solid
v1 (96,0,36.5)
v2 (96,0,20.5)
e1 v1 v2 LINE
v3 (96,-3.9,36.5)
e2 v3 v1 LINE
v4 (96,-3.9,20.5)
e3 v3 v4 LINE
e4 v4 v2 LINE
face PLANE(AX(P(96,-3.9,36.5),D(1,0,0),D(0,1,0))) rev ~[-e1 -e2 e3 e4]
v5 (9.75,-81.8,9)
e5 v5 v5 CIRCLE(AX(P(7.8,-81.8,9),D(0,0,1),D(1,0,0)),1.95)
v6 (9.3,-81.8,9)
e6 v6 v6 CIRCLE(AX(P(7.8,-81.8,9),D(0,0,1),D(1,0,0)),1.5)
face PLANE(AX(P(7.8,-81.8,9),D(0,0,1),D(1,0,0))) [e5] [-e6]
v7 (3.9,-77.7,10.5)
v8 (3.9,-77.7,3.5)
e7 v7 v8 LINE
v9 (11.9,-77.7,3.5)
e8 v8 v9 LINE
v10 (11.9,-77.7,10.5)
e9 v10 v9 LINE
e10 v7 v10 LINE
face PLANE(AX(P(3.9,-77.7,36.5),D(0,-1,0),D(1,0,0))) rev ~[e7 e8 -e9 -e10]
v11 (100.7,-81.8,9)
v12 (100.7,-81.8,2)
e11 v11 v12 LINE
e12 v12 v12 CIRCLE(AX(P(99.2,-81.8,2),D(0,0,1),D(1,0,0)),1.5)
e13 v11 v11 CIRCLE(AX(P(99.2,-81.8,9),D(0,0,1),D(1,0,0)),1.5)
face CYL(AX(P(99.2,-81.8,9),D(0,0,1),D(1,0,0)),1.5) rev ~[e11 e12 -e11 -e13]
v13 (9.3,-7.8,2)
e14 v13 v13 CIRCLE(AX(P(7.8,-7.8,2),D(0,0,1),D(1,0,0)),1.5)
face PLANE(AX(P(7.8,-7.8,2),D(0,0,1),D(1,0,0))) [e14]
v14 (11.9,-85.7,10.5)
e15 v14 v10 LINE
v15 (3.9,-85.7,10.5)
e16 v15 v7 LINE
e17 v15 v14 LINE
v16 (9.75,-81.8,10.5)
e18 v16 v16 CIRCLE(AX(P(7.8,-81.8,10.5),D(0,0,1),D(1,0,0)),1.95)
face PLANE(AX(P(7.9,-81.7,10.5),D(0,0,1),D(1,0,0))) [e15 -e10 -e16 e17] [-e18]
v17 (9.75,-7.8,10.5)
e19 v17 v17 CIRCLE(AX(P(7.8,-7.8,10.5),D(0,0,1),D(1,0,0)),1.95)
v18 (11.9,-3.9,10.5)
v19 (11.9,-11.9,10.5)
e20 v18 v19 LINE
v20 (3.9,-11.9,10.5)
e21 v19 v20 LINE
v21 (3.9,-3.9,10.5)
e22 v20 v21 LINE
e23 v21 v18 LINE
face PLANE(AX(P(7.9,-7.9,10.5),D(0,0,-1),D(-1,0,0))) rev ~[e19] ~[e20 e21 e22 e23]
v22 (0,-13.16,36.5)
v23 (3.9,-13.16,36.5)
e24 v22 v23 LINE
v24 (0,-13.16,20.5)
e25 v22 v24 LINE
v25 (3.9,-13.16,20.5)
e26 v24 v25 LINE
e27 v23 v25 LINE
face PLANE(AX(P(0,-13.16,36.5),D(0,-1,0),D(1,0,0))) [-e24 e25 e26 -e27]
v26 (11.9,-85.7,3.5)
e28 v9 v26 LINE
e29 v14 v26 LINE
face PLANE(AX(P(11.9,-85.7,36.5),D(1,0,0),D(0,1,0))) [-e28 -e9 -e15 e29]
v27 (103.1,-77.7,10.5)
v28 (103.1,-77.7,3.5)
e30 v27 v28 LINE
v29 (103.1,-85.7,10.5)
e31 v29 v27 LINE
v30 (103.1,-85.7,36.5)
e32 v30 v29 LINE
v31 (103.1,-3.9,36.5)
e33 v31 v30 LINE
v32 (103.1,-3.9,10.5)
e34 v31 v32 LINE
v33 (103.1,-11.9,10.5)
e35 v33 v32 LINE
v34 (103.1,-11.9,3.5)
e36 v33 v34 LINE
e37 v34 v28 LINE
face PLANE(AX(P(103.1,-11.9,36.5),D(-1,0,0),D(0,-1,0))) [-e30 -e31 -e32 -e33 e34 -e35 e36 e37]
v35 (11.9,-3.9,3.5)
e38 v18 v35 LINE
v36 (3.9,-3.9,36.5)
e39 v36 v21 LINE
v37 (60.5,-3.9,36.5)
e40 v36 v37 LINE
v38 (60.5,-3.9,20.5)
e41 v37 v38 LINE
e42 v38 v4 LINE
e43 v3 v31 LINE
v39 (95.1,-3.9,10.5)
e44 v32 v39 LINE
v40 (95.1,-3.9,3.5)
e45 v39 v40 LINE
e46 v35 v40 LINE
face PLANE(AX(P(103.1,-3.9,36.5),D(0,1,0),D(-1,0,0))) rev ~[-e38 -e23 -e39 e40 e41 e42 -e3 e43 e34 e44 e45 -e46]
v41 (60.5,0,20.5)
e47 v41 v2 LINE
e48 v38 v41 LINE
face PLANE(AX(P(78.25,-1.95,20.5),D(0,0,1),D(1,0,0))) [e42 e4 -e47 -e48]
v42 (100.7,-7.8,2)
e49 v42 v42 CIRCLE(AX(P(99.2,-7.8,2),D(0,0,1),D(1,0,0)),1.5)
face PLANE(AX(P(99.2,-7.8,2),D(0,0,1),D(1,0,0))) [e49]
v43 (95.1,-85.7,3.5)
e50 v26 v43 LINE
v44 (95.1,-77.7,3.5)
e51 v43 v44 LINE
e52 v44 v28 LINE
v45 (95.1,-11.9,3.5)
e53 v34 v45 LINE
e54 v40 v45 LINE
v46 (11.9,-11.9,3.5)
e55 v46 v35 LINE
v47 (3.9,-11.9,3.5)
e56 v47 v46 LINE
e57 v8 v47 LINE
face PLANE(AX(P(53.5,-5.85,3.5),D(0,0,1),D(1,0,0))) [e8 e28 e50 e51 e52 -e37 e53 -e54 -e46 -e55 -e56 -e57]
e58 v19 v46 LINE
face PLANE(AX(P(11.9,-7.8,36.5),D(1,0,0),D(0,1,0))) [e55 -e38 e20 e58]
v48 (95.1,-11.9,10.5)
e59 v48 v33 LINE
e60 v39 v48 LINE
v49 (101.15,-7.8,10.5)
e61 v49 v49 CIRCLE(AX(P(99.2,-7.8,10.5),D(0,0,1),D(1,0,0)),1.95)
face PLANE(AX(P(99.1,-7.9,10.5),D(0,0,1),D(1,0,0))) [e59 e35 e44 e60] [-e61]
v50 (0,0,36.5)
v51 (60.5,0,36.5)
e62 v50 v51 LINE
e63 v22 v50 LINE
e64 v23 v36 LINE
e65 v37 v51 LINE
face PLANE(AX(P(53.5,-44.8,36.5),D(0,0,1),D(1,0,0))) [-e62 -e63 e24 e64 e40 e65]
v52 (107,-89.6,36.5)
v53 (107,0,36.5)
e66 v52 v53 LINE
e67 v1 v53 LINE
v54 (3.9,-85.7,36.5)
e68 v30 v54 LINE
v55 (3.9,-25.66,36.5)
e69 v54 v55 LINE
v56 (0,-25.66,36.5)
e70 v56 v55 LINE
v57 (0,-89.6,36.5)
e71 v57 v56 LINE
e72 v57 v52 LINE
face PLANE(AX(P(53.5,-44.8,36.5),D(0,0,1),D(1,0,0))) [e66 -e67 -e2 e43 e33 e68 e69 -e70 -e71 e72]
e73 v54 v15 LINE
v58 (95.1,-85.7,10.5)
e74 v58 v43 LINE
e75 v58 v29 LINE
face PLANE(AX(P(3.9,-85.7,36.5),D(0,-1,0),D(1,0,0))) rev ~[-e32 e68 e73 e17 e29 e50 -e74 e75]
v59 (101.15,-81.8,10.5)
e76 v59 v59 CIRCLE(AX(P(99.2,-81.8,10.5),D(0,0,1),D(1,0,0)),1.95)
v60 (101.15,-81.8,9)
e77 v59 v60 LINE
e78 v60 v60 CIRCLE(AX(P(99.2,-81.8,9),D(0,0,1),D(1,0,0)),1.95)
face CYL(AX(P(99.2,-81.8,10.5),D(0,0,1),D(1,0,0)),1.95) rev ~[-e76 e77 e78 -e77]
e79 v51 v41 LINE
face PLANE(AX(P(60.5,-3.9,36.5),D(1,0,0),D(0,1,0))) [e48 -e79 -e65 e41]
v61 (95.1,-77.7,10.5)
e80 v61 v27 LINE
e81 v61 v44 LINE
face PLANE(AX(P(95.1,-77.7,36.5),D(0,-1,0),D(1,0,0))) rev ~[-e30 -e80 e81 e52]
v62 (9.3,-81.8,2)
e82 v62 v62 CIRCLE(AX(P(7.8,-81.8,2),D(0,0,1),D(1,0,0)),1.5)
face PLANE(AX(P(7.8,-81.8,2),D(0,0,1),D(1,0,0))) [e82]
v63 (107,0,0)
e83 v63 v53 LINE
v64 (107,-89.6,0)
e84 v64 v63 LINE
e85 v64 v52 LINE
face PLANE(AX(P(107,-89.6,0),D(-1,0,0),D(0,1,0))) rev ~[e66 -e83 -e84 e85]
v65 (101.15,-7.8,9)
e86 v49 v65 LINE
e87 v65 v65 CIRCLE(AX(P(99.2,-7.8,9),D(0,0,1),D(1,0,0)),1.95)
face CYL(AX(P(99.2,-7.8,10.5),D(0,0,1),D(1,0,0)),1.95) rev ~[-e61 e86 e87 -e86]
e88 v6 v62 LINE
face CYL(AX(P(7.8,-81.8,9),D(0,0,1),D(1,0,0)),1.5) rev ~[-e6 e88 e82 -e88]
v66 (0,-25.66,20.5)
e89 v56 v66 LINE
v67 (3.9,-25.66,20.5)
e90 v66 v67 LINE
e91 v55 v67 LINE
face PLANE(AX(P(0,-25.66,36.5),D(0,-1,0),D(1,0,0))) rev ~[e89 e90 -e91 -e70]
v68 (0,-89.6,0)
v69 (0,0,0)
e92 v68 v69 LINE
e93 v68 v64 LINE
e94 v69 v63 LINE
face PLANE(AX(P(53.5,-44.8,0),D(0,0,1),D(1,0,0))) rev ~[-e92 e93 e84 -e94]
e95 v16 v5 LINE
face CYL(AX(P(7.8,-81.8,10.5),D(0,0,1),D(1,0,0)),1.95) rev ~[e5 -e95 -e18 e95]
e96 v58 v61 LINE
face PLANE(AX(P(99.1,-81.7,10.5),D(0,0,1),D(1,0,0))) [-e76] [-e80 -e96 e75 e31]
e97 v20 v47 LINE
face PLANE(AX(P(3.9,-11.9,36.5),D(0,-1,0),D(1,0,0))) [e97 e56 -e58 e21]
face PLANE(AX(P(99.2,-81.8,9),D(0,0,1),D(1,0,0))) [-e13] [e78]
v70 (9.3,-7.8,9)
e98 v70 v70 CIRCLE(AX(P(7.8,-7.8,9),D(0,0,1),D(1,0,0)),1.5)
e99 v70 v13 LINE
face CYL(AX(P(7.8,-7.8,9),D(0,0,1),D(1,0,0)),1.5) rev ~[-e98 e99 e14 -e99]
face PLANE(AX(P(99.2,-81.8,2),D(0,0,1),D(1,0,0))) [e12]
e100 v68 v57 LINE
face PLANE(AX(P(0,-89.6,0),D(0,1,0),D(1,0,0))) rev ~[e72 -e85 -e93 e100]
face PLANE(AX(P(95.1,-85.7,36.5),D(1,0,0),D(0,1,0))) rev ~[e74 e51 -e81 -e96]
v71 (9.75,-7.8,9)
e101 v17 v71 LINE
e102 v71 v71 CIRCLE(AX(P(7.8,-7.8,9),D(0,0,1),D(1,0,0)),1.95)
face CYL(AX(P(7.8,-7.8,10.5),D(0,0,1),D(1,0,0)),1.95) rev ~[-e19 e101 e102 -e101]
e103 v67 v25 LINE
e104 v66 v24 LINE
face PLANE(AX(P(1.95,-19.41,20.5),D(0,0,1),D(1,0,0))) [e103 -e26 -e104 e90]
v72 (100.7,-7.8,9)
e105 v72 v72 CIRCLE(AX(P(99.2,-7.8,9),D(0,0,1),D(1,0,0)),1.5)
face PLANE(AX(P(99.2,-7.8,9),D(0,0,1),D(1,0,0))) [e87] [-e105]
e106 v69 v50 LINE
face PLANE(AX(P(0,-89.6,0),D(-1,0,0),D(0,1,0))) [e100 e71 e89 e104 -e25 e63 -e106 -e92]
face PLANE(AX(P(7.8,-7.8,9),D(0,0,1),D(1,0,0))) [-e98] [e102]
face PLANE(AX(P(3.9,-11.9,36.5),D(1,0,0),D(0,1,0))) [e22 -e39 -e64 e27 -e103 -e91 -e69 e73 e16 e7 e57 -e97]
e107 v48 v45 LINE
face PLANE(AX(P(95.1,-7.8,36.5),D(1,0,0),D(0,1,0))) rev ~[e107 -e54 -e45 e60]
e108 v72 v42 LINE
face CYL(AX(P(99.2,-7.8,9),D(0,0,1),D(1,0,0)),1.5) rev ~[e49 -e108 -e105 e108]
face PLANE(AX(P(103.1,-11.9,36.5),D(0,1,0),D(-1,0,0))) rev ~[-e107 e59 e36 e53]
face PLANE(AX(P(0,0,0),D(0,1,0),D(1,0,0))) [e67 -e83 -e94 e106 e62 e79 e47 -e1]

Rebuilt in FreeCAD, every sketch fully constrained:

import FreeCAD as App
import Part
import Sketcher

V = App.Vector
Q = App.Units.Quantity

doc = App.newDocument("Part")
params = doc.addObject("Spreadsheet::Sheet", "Params")
for row, (alias, value) in enumerate([
    ("sketch1_width", "107 mm"),
    ("sketch1_height", "89.6 mm"),
    ("pad1_length", "36.5 mm"),
    ("sketch2_width", "8 mm"),
    ("sketch2_width2", "83.2 mm"),
    ("sketch2_height", "4.1 mm"),
    ("sketch2_height2", "65.8 mm"),
    ("pocket1_length", "33 mm"),
    ("sketch3_width", "8 mm"),
    ("pocket2_length", "26 mm"),
    ("sketch4_width", "83.2 mm"),
    ("sketch4_height", "3.9 mm"),
    ("sketch4_height2", "4.1 mm"),
    ("pocket3_length", "33 mm"),
    ("sketch5_width", "83.2 mm"),
    ("sketch5_height", "3.9 mm"),
    ("pocket4_length", "33 mm"),
    ("sketch6_width", "35.5 mm"),
    ("sketch6_height", "3.9 mm"),
    ("pocket5_length", "16 mm"),
    ("sketch7_width", "3.9 mm"),
    ("sketch7_height", "12.5 mm"),
    ("pocket6_length", "16 mm"),
    ("sketch8_diameter", "3.9 mm"),
    ("pocket7_length", "1.5 mm"),
    ("sketch9_diameter", "3.9 mm"),
    ("pocket8_length", "1.5 mm"),
    ("sketch10_diameter", "3.9 mm"),
    ("pocket9_length", "1.5 mm"),
    ("sketch11_diameter", "3.9 mm"),
    ("pocket10_length", "1.5 mm"),
    ("sketch12_diameter", "3 mm"),
    ("pocket11_length", "7 mm"),
    ("sketch13_diameter", "3 mm"),
    ("pocket12_length", "7 mm"),
    ("sketch14_diameter", "3 mm"),
    ("pocket13_length", "7 mm"),
    ("sketch15_diameter", "3 mm"),
    ("pocket14_length", "7 mm"),
], start=1):
    params.set(f"A{row}", alias)
    params.set(f"B{row}", "=" + value)
    params.setAlias(f"B{row}", alias)

body = doc.addObject("PartDesign::Body", "Body")

# Sketch on XY plane
sketch1 = body.newObject("Sketcher::SketchObject", "Sketch")
sketch1.AttachmentSupport = (doc.getObject("XY_Plane"), [""])
sketch1.MapMode = "FlatFace"
sketch1.addGeometry(Part.LineSegment(V(0, 0, 0), V(0, -90, 0)), False)
sketch1.addGeometry(Part.LineSegment(V(0, -90, 0), V(107, -90, 0)), False)
sketch1.addGeometry(Part.LineSegment(V(107, -90, 0), V(107, 0, 0)), False)
sketch1.addGeometry(Part.LineSegment(V(107, 0, 0), V(0, 0, 0)), False)
sketch1.addConstraint(Sketcher.Constraint("Coincident", 0, 2, 1, 1))
sketch1.addConstraint(Sketcher.Constraint("Coincident", 1, 2, 2, 1))
sketch1.addConstraint(Sketcher.Constraint("Coincident", 2, 2, 3, 1))
sketch1.addConstraint(Sketcher.Constraint("Coincident", 3, 2, 0, 1))
sketch1.addConstraint(Sketcher.Constraint("Vertical", 0))
sketch1.addConstraint(Sketcher.Constraint("Horizontal", 1))
sketch1.addConstraint(Sketcher.Constraint("Vertical", 2))
sketch1.addConstraint(Sketcher.Constraint("Horizontal", 3))
sketch1.addConstraint(Sketcher.Constraint("Coincident", 3, 2, -1, 1))
sketch1.addConstraint(Sketcher.Constraint("DistanceX", 1, 1, 1, 2, Q("107 mm")))
sketch1.addConstraint(Sketcher.Constraint("DistanceY", 0, 2, 0, 1, Q("89.6 mm")))
sketch1.setExpression("Constraints[9]", "Params.sketch1_width")
sketch1.setExpression("Constraints[10]", "Params.sketch1_height")
pad1 = body.newObject("PartDesign::Pad", "Pad")
pad1.Profile = sketch1
pad1.setExpression("Length", "Params.pad1_length")

# Sketch on XY plane
sketch2 = body.newObject("Sketcher::SketchObject", "Sketch001")
sketch2.AttachmentSupport = (doc.getObject("XY_Plane"), [""])
sketch2.MapMode = "FlatFace"
sketch2.AttachmentOffset = App.Placement(V(0, 0, 36.5), App.Rotation())
sketch2.addGeometry(Part.LineSegment(V(95.1, -81.8, 0), V(95.1, -77.7, 0)), False)
sketch2.addGeometry(Part.LineSegment(V(95.1, -77.7, 0), V(103.1, -77.7, 0)), False)
sketch2.addGeometry(Part.LineSegment(V(103.1, -77.7, 0), V(103.1, -11.9, 0)), False)
sketch2.addGeometry(Part.LineSegment(V(103.1, -11.9, 0), V(95.1, -11.9, 0)), False)
sketch2.addGeometry(Part.LineSegment(V(95.1, -11.9, 0), V(95.1, -7.8, 0)), False)
sketch2.addGeometry(Part.LineSegment(V(95.1, -7.8, 0), V(11.9, -7.8, 0)), False)
sketch2.addGeometry(Part.LineSegment(V(11.9, -7.8, 0), V(11.9, -11.9, 0)), False)
sketch2.addGeometry(Part.LineSegment(V(11.9, -11.9, 0), V(3.9, -11.9, 0)), False)
sketch2.addGeometry(Part.LineSegment(V(3.9, -11.9, 0), V(3.9, -77.7, 0)), False)
sketch2.addGeometry(Part.LineSegment(V(3.9, -77.7, 0), V(11.9, -77.7, 0)), False)
sketch2.addGeometry(Part.LineSegment(V(11.9, -77.7, 0), V(11.9, -81.8, 0)), False)
sketch2.addGeometry(Part.LineSegment(V(11.9, -81.8, 0), V(95.1, -81.8, 0)), False)
sketch2.addConstraint(Sketcher.Constraint("Coincident", 0, 2, 1, 1))
sketch2.addConstraint(Sketcher.Constraint("Coincident", 1, 2, 2, 1))
sketch2.addConstraint(Sketcher.Constraint("Coincident", 2, 2, 3, 1))
sketch2.addConstraint(Sketcher.Constraint("Coincident", 3, 2, 4, 1))
sketch2.addConstraint(Sketcher.Constraint("Coincident", 4, 2, 5, 1))
sketch2.addConstraint(Sketcher.Constraint("Coincident", 5, 2, 6, 1))
sketch2.addConstraint(Sketcher.Constraint("Coincident", 6, 2, 7, 1))
sketch2.addConstraint(Sketcher.Constraint("Coincident", 7, 2, 8, 1))
sketch2.addConstraint(Sketcher.Constraint("Coincident", 8, 2, 9, 1))
sketch2.addConstraint(Sketcher.Constraint("Coincident", 9, 2, 10, 1))
sketch2.addConstraint(Sketcher.Constraint("Coincident", 10, 2, 11, 1))
sketch2.addConstraint(Sketcher.Constraint("Coincident", 11, 2, 0, 1))
sketch2.addConstraint(Sketcher.Constraint("Vertical", 0))
sketch2.addConstraint(Sketcher.Constraint("Horizontal", 1))
sketch2.addConstraint(Sketcher.Constraint("Vertical", 2))
sketch2.addConstraint(Sketcher.Constraint("Horizontal", 3))
sketch2.addConstraint(Sketcher.Constraint("Vertical", 4))
sketch2.addConstraint(Sketcher.Constraint("Horizontal", 5))
sketch2.addConstraint(Sketcher.Constraint("Vertical", 6))
sketch2.addConstraint(Sketcher.Constraint("Horizontal", 7))
sketch2.addConstraint(Sketcher.Constraint("Vertical", 8))
sketch2.addConstraint(Sketcher.Constraint("Horizontal", 9))
sketch2.addConstraint(Sketcher.Constraint("Vertical", 10))
sketch2.addConstraint(Sketcher.Constraint("Horizontal", 11))
sketch2.addConstraint(Sketcher.Constraint("Horizontal", 3, 2, 6, 2))
sketch2.addConstraint(Sketcher.Constraint("Horizontal", 1, 2, 8, 2))
sketch2.addConstraint(Sketcher.Constraint("Vertical", 0, 2, 3, 2))
sketch2.addConstraint(Sketcher.Constraint("Vertical", 6, 2, 9, 2))
sketch2.addConstraint(Sketcher.Constraint("Equal", 3, 7))
sketch2.addConstraint(Sketcher.Constraint("Equal", 0, 4))
sketch2.addConstraint(Sketcher.Constraint("DistanceX", 1, 1, 1, 2, Q("8 mm")))
sketch2.addConstraint(Sketcher.Constraint("DistanceX", 5, 2, 5, 1, Q("83.2 mm")))
sketch2.addConstraint(Sketcher.Constraint("DistanceY", 0, 1, 0, 2, Q("4.1 mm")))
sketch2.addConstraint(Sketcher.Constraint("DistanceY", 2, 1, 2, 2, Q("65.8 mm")))
sketch2.addConstraint(Sketcher.Constraint("DistanceX", -1, 1, 0, 2, Q("95.1 mm")))
sketch2.addConstraint(Sketcher.Constraint("DistanceY", 0, 2, -1, 1, Q("77.7 mm")))
sketch2.setExpression("Constraints[30]", "Params.sketch2_width")
sketch2.setExpression("Constraints[31]", "Params.sketch2_width2")
sketch2.setExpression("Constraints[32]", "Params.sketch2_height")
sketch2.setExpression("Constraints[33]", "Params.sketch2_height2")
pocket1 = body.newObject("PartDesign::Pocket", "Pocket")
pocket1.Profile = sketch2
pocket1.setExpression("Length", "Params.pocket1_length")

# Sketch on XY plane
sketch3 = body.newObject("Sketcher::SketchObject", "Sketch002")
sketch3.AttachmentSupport = (doc.getObject("XY_Plane"), [""])
sketch3.MapMode = "FlatFace"
sketch3.AttachmentOffset = App.Placement(V(0, 0, 36.5), App.Rotation())
sketch3.addGeometry(Part.LineSegment(V(4, -4, 0), V(4, -12, 0)), False)
sketch3.addGeometry(Part.LineSegment(V(4, -12, 0), V(12, -12, 0)), False)
sketch3.addGeometry(Part.LineSegment(V(12, -12, 0), V(12, -4, 0)), False)
sketch3.addGeometry(Part.LineSegment(V(12, -4, 0), V(4, -4, 0)), False)
sketch3.addGeometry(Part.LineSegment(V(103, -12, 0), V(103, -4, 0)), False)
sketch3.addGeometry(Part.LineSegment(V(103, -4, 0), V(95, -4, 0)), False)
sketch3.addGeometry(Part.LineSegment(V(95, -4, 0), V(95, -12, 0)), False)
sketch3.addGeometry(Part.LineSegment(V(95, -12, 0), V(103, -12, 0)), False)
sketch3.addGeometry(Part.LineSegment(V(4, -78, 0), V(4, -86, 0)), False)
sketch3.addGeometry(Part.LineSegment(V(4, -86, 0), V(12, -86, 0)), False)
sketch3.addGeometry(Part.LineSegment(V(12, -86, 0), V(12, -78, 0)), False)
sketch3.addGeometry(Part.LineSegment(V(12, -78, 0), V(4, -78, 0)), False)
sketch3.addGeometry(Part.LineSegment(V(95, -78, 0), V(95, -86, 0)), False)
sketch3.addGeometry(Part.LineSegment(V(95, -86, 0), V(103, -86, 0)), False)
sketch3.addGeometry(Part.LineSegment(V(103, -86, 0), V(103, -78, 0)), False)
sketch3.addGeometry(Part.LineSegment(V(103, -78, 0), V(95, -78, 0)), False)
sketch3.addConstraint(Sketcher.Constraint("Coincident", 0, 2, 1, 1))
sketch3.addConstraint(Sketcher.Constraint("Coincident", 1, 2, 2, 1))
sketch3.addConstraint(Sketcher.Constraint("Coincident", 2, 2, 3, 1))
sketch3.addConstraint(Sketcher.Constraint("Coincident", 3, 2, 0, 1))
sketch3.addConstraint(Sketcher.Constraint("Coincident", 4, 2, 5, 1))
sketch3.addConstraint(Sketcher.Constraint("Coincident", 5, 2, 6, 1))
sketch3.addConstraint(Sketcher.Constraint("Coincident", 6, 2, 7, 1))
sketch3.addConstraint(Sketcher.Constraint("Coincident", 7, 2, 4, 1))
sketch3.addConstraint(Sketcher.Constraint("Coincident", 8, 2, 9, 1))
sketch3.addConstraint(Sketcher.Constraint("Coincident", 9, 2, 10, 1))
sketch3.addConstraint(Sketcher.Constraint("Coincident", 10, 2, 11, 1))
sketch3.addConstraint(Sketcher.Constraint("Coincident", 11, 2, 8, 1))
sketch3.addConstraint(Sketcher.Constraint("Coincident", 12, 2, 13, 1))
sketch3.addConstraint(Sketcher.Constraint("Coincident", 13, 2, 14, 1))
sketch3.addConstraint(Sketcher.Constraint("Coincident", 14, 2, 15, 1))
sketch3.addConstraint(Sketcher.Constraint("Coincident", 15, 2, 12, 1))
sketch3.addConstraint(Sketcher.Constraint("Vertical", 0))
sketch3.addConstraint(Sketcher.Constraint("Horizontal", 1))
sketch3.addConstraint(Sketcher.Constraint("Vertical", 2))
sketch3.addConstraint(Sketcher.Constraint("Horizontal", 3))
sketch3.addConstraint(Sketcher.Constraint("Vertical", 4))
sketch3.addConstraint(Sketcher.Constraint("Horizontal", 5))
sketch3.addConstraint(Sketcher.Constraint("Vertical", 6))
sketch3.addConstraint(Sketcher.Constraint("Horizontal", 7))
sketch3.addConstraint(Sketcher.Constraint("Vertical", 8))
sketch3.addConstraint(Sketcher.Constraint("Horizontal", 9))
sketch3.addConstraint(Sketcher.Constraint("Vertical", 10))
sketch3.addConstraint(Sketcher.Constraint("Horizontal", 11))
sketch3.addConstraint(Sketcher.Constraint("Vertical", 12))
sketch3.addConstraint(Sketcher.Constraint("Horizontal", 13))
sketch3.addConstraint(Sketcher.Constraint("Vertical", 14))
sketch3.addConstraint(Sketcher.Constraint("Horizontal", 15))
sketch3.addConstraint(Sketcher.Constraint("Horizontal", 3, 2, 4, 2))
sketch3.addConstraint(Sketcher.Constraint("Horizontal", 1, 2, 6, 2))
sketch3.addConstraint(Sketcher.Constraint("Horizontal", 9, 2, 12, 2))
sketch3.addConstraint(Sketcher.Constraint("Horizontal", 11, 2, 14, 2))
sketch3.addConstraint(Sketcher.Constraint("Vertical", 3, 2, 8, 2))
sketch3.addConstraint(Sketcher.Constraint("Vertical", 2, 2, 9, 2))
sketch3.addConstraint(Sketcher.Constraint("Vertical", 6, 2, 12, 2))
sketch3.addConstraint(Sketcher.Constraint("Vertical", 7, 2, 13, 2))
sketch3.addConstraint(Sketcher.Constraint("Equal", 3, 5))
sketch3.addConstraint(Sketcher.Constraint("Equal", 15, 0))
sketch3.addConstraint(Sketcher.Constraint("Equal", 6, 8))
sketch3.addConstraint(Sketcher.Constraint("DistanceX", 1, 1, 1, 2, Q("8 mm")))
sketch3.addConstraint(Sketcher.Constraint("DistanceX", -1, 1, 0, 2, Q("3.9 mm")))
sketch3.addConstraint(Sketcher.Constraint("DistanceY", 0, 2, -1, 1, Q("11.9 mm")))
sketch3.addConstraint(Sketcher.Constraint("DistanceX", -1, 1, 4, 2, Q("103.1 mm")))
sketch3.addConstraint(Sketcher.Constraint("DistanceY", 8, 2, -1, 1, Q("85.7 mm")))
sketch3.setExpression("Constraints[43]", "Params.sketch3_width")
pocket2 = body.newObject("PartDesign::Pocket", "Pocket001")
pocket2.Profile = sketch3
pocket2.setExpression("Length", "Params.pocket2_length")

# Sketch on XY plane
sketch4 = body.newObject("Sketcher::SketchObject", "Sketch003")
sketch4.AttachmentSupport = (doc.getObject("XY_Plane"), [""])
sketch4.MapMode = "FlatFace"
sketch4.AttachmentOffset = App.Placement(V(0, 0, 36.5), App.Rotation())
sketch4.addGeometry(Part.LineSegment(V(11.9, -3.9, 0), V(11.9, -7.8, 0)), False)
sketch4.addGeometry(Part.LineSegment(V(11.9, -7.8, 0), V(95.1, -7.8, 0)), False)
sketch4.addGeometry(Part.LineSegment(V(95.1, -7.8, 0), V(95.1, -3.9, 0)), False)
sketch4.addGeometry(Part.LineSegment(V(95.1, -3.9, 0), V(11.9, -3.9, 0)), False)
sketch4.addGeometry(Part.LineSegment(V(11.9, -77.7, 0), V(11.9, -81.8, 0)), False)
sketch4.addGeometry(Part.LineSegment(V(11.9, -81.8, 0), V(95.1, -81.8, 0)), False)
sketch4.addGeometry(Part.LineSegment(V(95.1, -81.8, 0), V(95.1, -77.7, 0)), False)
sketch4.addGeometry(Part.LineSegment(V(95.1, -77.7, 0), V(11.9, -77.7, 0)), False)
sketch4.addConstraint(Sketcher.Constraint("Coincident", 0, 2, 1, 1))
sketch4.addConstraint(Sketcher.Constraint("Coincident", 1, 2, 2, 1))
sketch4.addConstraint(Sketcher.Constraint("Coincident", 2, 2, 3, 1))
sketch4.addConstraint(Sketcher.Constraint("Coincident", 3, 2, 0, 1))
sketch4.addConstraint(Sketcher.Constraint("Coincident", 4, 2, 5, 1))
sketch4.addConstraint(Sketcher.Constraint("Coincident", 5, 2, 6, 1))
sketch4.addConstraint(Sketcher.Constraint("Coincident", 6, 2, 7, 1))
sketch4.addConstraint(Sketcher.Constraint("Coincident", 7, 2, 4, 1))
sketch4.addConstraint(Sketcher.Constraint("Vertical", 0))
sketch4.addConstraint(Sketcher.Constraint("Horizontal", 1))
sketch4.addConstraint(Sketcher.Constraint("Vertical", 2))
sketch4.addConstraint(Sketcher.Constraint("Horizontal", 3))
sketch4.addConstraint(Sketcher.Constraint("Vertical", 4))
sketch4.addConstraint(Sketcher.Constraint("Horizontal", 5))
sketch4.addConstraint(Sketcher.Constraint("Vertical", 6))
sketch4.addConstraint(Sketcher.Constraint("Horizontal", 7))
sketch4.addConstraint(Sketcher.Constraint("Vertical", 3, 2, 4, 2))
sketch4.addConstraint(Sketcher.Constraint("Vertical", 2, 2, 5, 2))
sketch4.addConstraint(Sketcher.Constraint("DistanceX", 1, 1, 1, 2, Q("83.2 mm")))
sketch4.addConstraint(Sketcher.Constraint("DistanceY", 0, 2, 0, 1, Q("3.9 mm")))
sketch4.addConstraint(Sketcher.Constraint("DistanceY", 4, 2, 4, 1, Q("4.1 mm")))
sketch4.addConstraint(Sketcher.Constraint("DistanceY", 4, 2, 0, 2, Q("74 mm")))
sketch4.addConstraint(Sketcher.Constraint("DistanceX", -1, 1, 0, 2, Q("11.9 mm")))
sketch4.addConstraint(Sketcher.Constraint("DistanceY", 0, 2, -1, 1, Q("7.8 mm")))
sketch4.setExpression("Constraints[18]", "Params.sketch4_width")
sketch4.setExpression("Constraints[19]", "Params.sketch4_height")
sketch4.setExpression("Constraints[20]", "Params.sketch4_height2")
pocket3 = body.newObject("PartDesign::Pocket", "Pocket002")
pocket3.Profile = sketch4
pocket3.setExpression("Length", "Params.pocket3_length")

# Sketch on XY plane
sketch5 = body.newObject("Sketcher::SketchObject", "Sketch004")
sketch5.AttachmentSupport = (doc.getObject("XY_Plane"), [""])
sketch5.MapMode = "FlatFace"
sketch5.AttachmentOffset = App.Placement(V(0, 0, 36.5), App.Rotation())
sketch5.addGeometry(Part.LineSegment(V(11.9, -81.8, 0), V(11.9, -85.7, 0)), False)
sketch5.addGeometry(Part.LineSegment(V(11.9, -85.7, 0), V(95.1, -85.7, 0)), False)
sketch5.addGeometry(Part.LineSegment(V(95.1, -85.7, 0), V(95.1, -81.8, 0)), False)
sketch5.addGeometry(Part.LineSegment(V(95.1, -81.8, 0), V(11.9, -81.8, 0)), False)
sketch5.addConstraint(Sketcher.Constraint("Coincident", 0, 2, 1, 1))
sketch5.addConstraint(Sketcher.Constraint("Coincident", 1, 2, 2, 1))
sketch5.addConstraint(Sketcher.Constraint("Coincident", 2, 2, 3, 1))
sketch5.addConstraint(Sketcher.Constraint("Coincident", 3, 2, 0, 1))
sketch5.addConstraint(Sketcher.Constraint("Vertical", 0))
sketch5.addConstraint(Sketcher.Constraint("Horizontal", 1))
sketch5.addConstraint(Sketcher.Constraint("Vertical", 2))
sketch5.addConstraint(Sketcher.Constraint("Horizontal", 3))
sketch5.addConstraint(Sketcher.Constraint("DistanceX", 1, 1, 1, 2, Q("83.2 mm")))
sketch5.addConstraint(Sketcher.Constraint("DistanceY", 0, 2, 0, 1, Q("3.9 mm")))
sketch5.addConstraint(Sketcher.Constraint("DistanceX", -1, 1, 0, 2, Q("11.9 mm")))
sketch5.addConstraint(Sketcher.Constraint("DistanceY", 0, 2, -1, 1, Q("85.7 mm")))
sketch5.setExpression("Constraints[8]", "Params.sketch5_width")
sketch5.setExpression("Constraints[9]", "Params.sketch5_height")
pocket4 = body.newObject("PartDesign::Pocket", "Pocket003")
pocket4.Profile = sketch5
pocket4.setExpression("Length", "Params.pocket4_length")

# Sketch on XY plane
sketch6 = body.newObject("Sketcher::SketchObject", "Sketch005")
sketch6.AttachmentSupport = (doc.getObject("XY_Plane"), [""])
sketch6.MapMode = "FlatFace"
sketch6.AttachmentOffset = App.Placement(V(0, 0, 36.5), App.Rotation())
sketch6.addGeometry(Part.LineSegment(V(60.5, 0, 0), V(60.5, -3.9, 0)), False)
sketch6.addGeometry(Part.LineSegment(V(60.5, -3.9, 0), V(96, -3.9, 0)), False)
sketch6.addGeometry(Part.LineSegment(V(96, -3.9, 0), V(96, 0, 0)), False)
sketch6.addGeometry(Part.LineSegment(V(96, 0, 0), V(60.5, 0, 0)), False)
sketch6.addConstraint(Sketcher.Constraint("Coincident", 0, 2, 1, 1))
sketch6.addConstraint(Sketcher.Constraint("Coincident", 1, 2, 2, 1))
sketch6.addConstraint(Sketcher.Constraint("Coincident", 2, 2, 3, 1))
sketch6.addConstraint(Sketcher.Constraint("Coincident", 3, 2, 0, 1))
sketch6.addConstraint(Sketcher.Constraint("Vertical", 0))
sketch6.addConstraint(Sketcher.Constraint("Horizontal", 1))
sketch6.addConstraint(Sketcher.Constraint("Vertical", 2))
sketch6.addConstraint(Sketcher.Constraint("Horizontal", 3))
sketch6.addConstraint(Sketcher.Constraint("PointOnObject", 2, 2, -1))
sketch6.addConstraint(Sketcher.Constraint("DistanceX", 1, 1, 1, 2, Q("35.5 mm")))
sketch6.addConstraint(Sketcher.Constraint("DistanceY", 0, 2, 0, 1, Q("3.9 mm")))
sketch6.addConstraint(Sketcher.Constraint("DistanceX", -1, 1, 1, 2, Q("96 mm")))
sketch6.setExpression("Constraints[9]", "Params.sketch6_width")
sketch6.setExpression("Constraints[10]", "Params.sketch6_height")
pocket5 = body.newObject("PartDesign::Pocket", "Pocket004")
pocket5.Profile = sketch6
pocket5.setExpression("Length", "Params.pocket5_length")

# Sketch on XY plane
sketch7 = body.newObject("Sketcher::SketchObject", "Sketch006")
sketch7.AttachmentSupport = (doc.getObject("XY_Plane"), [""])
sketch7.MapMode = "FlatFace"
sketch7.AttachmentOffset = App.Placement(V(0, 0, 36.5), App.Rotation())
sketch7.addGeometry(Part.LineSegment(V(0, -13.2, 0), V(0, -25.7, 0)), False)
sketch7.addGeometry(Part.LineSegment(V(0, -25.7, 0), V(3.9, -25.7, 0)), False)
sketch7.addGeometry(Part.LineSegment(V(3.9, -25.7, 0), V(3.9, -13.2, 0)), False)
sketch7.addGeometry(Part.LineSegment(V(3.9, -13.2, 0), V(0, -13.2, 0)), False)
sketch7.addConstraint(Sketcher.Constraint("Coincident", 0, 2, 1, 1))
sketch7.addConstraint(Sketcher.Constraint("Coincident", 1, 2, 2, 1))
sketch7.addConstraint(Sketcher.Constraint("Coincident", 2, 2, 3, 1))
sketch7.addConstraint(Sketcher.Constraint("Coincident", 3, 2, 0, 1))
sketch7.addConstraint(Sketcher.Constraint("Vertical", 0))
sketch7.addConstraint(Sketcher.Constraint("Horizontal", 1))
sketch7.addConstraint(Sketcher.Constraint("Vertical", 2))
sketch7.addConstraint(Sketcher.Constraint("Horizontal", 3))
sketch7.addConstraint(Sketcher.Constraint("PointOnObject", 0, 2, -2))
sketch7.addConstraint(Sketcher.Constraint("DistanceX", 1, 1, 1, 2, Q("3.9 mm")))
sketch7.addConstraint(Sketcher.Constraint("DistanceY", 0, 2, 0, 1, Q("12.5 mm")))
sketch7.addConstraint(Sketcher.Constraint("DistanceY", 0, 2, -1, 1, Q("25.66 mm")))
sketch7.setExpression("Constraints[9]", "Params.sketch7_width")
sketch7.setExpression("Constraints[10]", "Params.sketch7_height")
pocket6 = body.newObject("PartDesign::Pocket", "Pocket005")
pocket6.Profile = sketch7
pocket6.setExpression("Length", "Params.pocket6_length")

# Sketch on XY plane
sketch8 = body.newObject("Sketcher::SketchObject", "Sketch007")
sketch8.AttachmentSupport = (doc.getObject("XY_Plane"), [""])
sketch8.MapMode = "FlatFace"
sketch8.AttachmentOffset = App.Placement(V(0, 0, 10.5), App.Rotation())
sketch8.addGeometry(Part.Circle(V(7.8, -7.8, 0), V(0, 0, 1), 1.9), False)
sketch8.addConstraint(Sketcher.Constraint("Diameter", 0, Q("3.9 mm")))
sketch8.addConstraint(Sketcher.Constraint("DistanceX", -1, 1, 0, 3, Q("7.8 mm")))
sketch8.addConstraint(Sketcher.Constraint("DistanceY", 0, 3, -1, 1, Q("7.8 mm")))
sketch8.setExpression("Constraints[0]", "Params.sketch8_diameter")
pocket7 = body.newObject("PartDesign::Pocket", "Pocket006")
pocket7.Profile = sketch8
pocket7.setExpression("Length", "Params.pocket7_length")

# Sketch on XY plane
sketch9 = body.newObject("Sketcher::SketchObject", "Sketch008")
sketch9.AttachmentSupport = (doc.getObject("XY_Plane"), [""])
sketch9.MapMode = "FlatFace"
sketch9.AttachmentOffset = App.Placement(V(0, 0, 10.5), App.Rotation())
sketch9.addGeometry(Part.Circle(V(99.2, -7.8, 0), V(0, 0, 1), 1.9), False)
sketch9.addConstraint(Sketcher.Constraint("Diameter", 0, Q("3.9 mm")))
sketch9.addConstraint(Sketcher.Constraint("DistanceX", -1, 1, 0, 3, Q("99.2 mm")))
sketch9.addConstraint(Sketcher.Constraint("DistanceY", 0, 3, -1, 1, Q("7.8 mm")))
sketch9.setExpression("Constraints[0]", "Params.sketch9_diameter")
pocket8 = body.newObject("PartDesign::Pocket", "Pocket007")
pocket8.Profile = sketch9
pocket8.setExpression("Length", "Params.pocket8_length")

# Sketch on XY plane
sketch10 = body.newObject("Sketcher::SketchObject", "Sketch009")
sketch10.AttachmentSupport = (doc.getObject("XY_Plane"), [""])
sketch10.MapMode = "FlatFace"
sketch10.AttachmentOffset = App.Placement(V(0, 0, 10.5), App.Rotation())
sketch10.addGeometry(Part.Circle(V(99.2, -81.8, 0), V(0, 0, 1), 1.9), False)
sketch10.addConstraint(Sketcher.Constraint("Diameter", 0, Q("3.9 mm")))
sketch10.addConstraint(Sketcher.Constraint("DistanceX", -1, 1, 0, 3, Q("99.2 mm")))
sketch10.addConstraint(Sketcher.Constraint("DistanceY", 0, 3, -1, 1, Q("81.8 mm")))
sketch10.setExpression("Constraints[0]", "Params.sketch10_diameter")
pocket9 = body.newObject("PartDesign::Pocket", "Pocket008")
pocket9.Profile = sketch10
pocket9.setExpression("Length", "Params.pocket9_length")

# Sketch on XY plane
sketch11 = body.newObject("Sketcher::SketchObject", "Sketch010")
sketch11.AttachmentSupport = (doc.getObject("XY_Plane"), [""])
sketch11.MapMode = "FlatFace"
sketch11.AttachmentOffset = App.Placement(V(0, 0, 10.5), App.Rotation())
sketch11.addGeometry(Part.Circle(V(7.8, -81.8, 0), V(0, 0, 1), 1.9), False)
sketch11.addConstraint(Sketcher.Constraint("Diameter", 0, Q("3.9 mm")))
sketch11.addConstraint(Sketcher.Constraint("DistanceX", -1, 1, 0, 3, Q("7.8 mm")))
sketch11.addConstraint(Sketcher.Constraint("DistanceY", 0, 3, -1, 1, Q("81.8 mm")))
sketch11.setExpression("Constraints[0]", "Params.sketch11_diameter")
pocket10 = body.newObject("PartDesign::Pocket", "Pocket009")
pocket10.Profile = sketch11
pocket10.setExpression("Length", "Params.pocket10_length")

# Sketch on XY plane
sketch12 = body.newObject("Sketcher::SketchObject", "Sketch011")
sketch12.AttachmentSupport = (doc.getObject("XY_Plane"), [""])
sketch12.MapMode = "FlatFace"
sketch12.AttachmentOffset = App.Placement(V(0, 0, 9), App.Rotation())
sketch12.addGeometry(Part.Circle(V(7.8, -7.8, 0), V(0, 0, 1), 1.5), False)
sketch12.addConstraint(Sketcher.Constraint("Diameter", 0, Q("3 mm")))
sketch12.addConstraint(Sketcher.Constraint("DistanceX", -1, 1, 0, 3, Q("7.8 mm")))
sketch12.addConstraint(Sketcher.Constraint("DistanceY", 0, 3, -1, 1, Q("7.8 mm")))
sketch12.setExpression("Constraints[0]", "Params.sketch12_diameter")
pocket11 = body.newObject("PartDesign::Pocket", "Pocket010")
pocket11.Profile = sketch12
pocket11.setExpression("Length", "Params.pocket11_length")

# Sketch on XY plane
sketch13 = body.newObject("Sketcher::SketchObject", "Sketch012")
sketch13.AttachmentSupport = (doc.getObject("XY_Plane"), [""])
sketch13.MapMode = "FlatFace"
sketch13.AttachmentOffset = App.Placement(V(0, 0, 9), App.Rotation())
sketch13.addGeometry(Part.Circle(V(99.2, -7.8, 0), V(0, 0, 1), 1.5), False)
sketch13.addConstraint(Sketcher.Constraint("Diameter", 0, Q("3 mm")))
sketch13.addConstraint(Sketcher.Constraint("DistanceX", -1, 1, 0, 3, Q("99.2 mm")))
sketch13.addConstraint(Sketcher.Constraint("DistanceY", 0, 3, -1, 1, Q("7.8 mm")))
sketch13.setExpression("Constraints[0]", "Params.sketch13_diameter")
pocket12 = body.newObject("PartDesign::Pocket", "Pocket011")
pocket12.Profile = sketch13
pocket12.setExpression("Length", "Params.pocket12_length")

# Sketch on XY plane
sketch14 = body.newObject("Sketcher::SketchObject", "Sketch013")
sketch14.AttachmentSupport = (doc.getObject("XY_Plane"), [""])
sketch14.MapMode = "FlatFace"
sketch14.AttachmentOffset = App.Placement(V(0, 0, 9), App.Rotation())
sketch14.addGeometry(Part.Circle(V(99.2, -81.8, 0), V(0, 0, 1), 1.5), False)
sketch14.addConstraint(Sketcher.Constraint("Diameter", 0, Q("3 mm")))
sketch14.addConstraint(Sketcher.Constraint("DistanceX", -1, 1, 0, 3, Q("99.2 mm")))
sketch14.addConstraint(Sketcher.Constraint("DistanceY", 0, 3, -1, 1, Q("81.8 mm")))
sketch14.setExpression("Constraints[0]", "Params.sketch14_diameter")
pocket13 = body.newObject("PartDesign::Pocket", "Pocket012")
pocket13.Profile = sketch14
pocket13.setExpression("Length", "Params.pocket13_length")

# Sketch on XY plane
sketch15 = body.newObject("Sketcher::SketchObject", "Sketch014")
sketch15.AttachmentSupport = (doc.getObject("XY_Plane"), [""])
sketch15.MapMode = "FlatFace"
sketch15.AttachmentOffset = App.Placement(V(0, 0, 9), App.Rotation())
sketch15.addGeometry(Part.Circle(V(7.8, -81.8, 0), V(0, 0, 1), 1.5), False)
sketch15.addConstraint(Sketcher.Constraint("Diameter", 0, Q("3 mm")))
sketch15.addConstraint(Sketcher.Constraint("DistanceX", -1, 1, 0, 3, Q("7.8 mm")))
sketch15.addConstraint(Sketcher.Constraint("DistanceY", 0, 3, -1, 1, Q("81.8 mm")))
sketch15.setExpression("Constraints[0]", "Params.sketch15_diameter")
pocket14 = body.newObject("PartDesign::Pocket", "Pocket013")
pocket14.Profile = sketch15
pocket14.setExpression("Length", "Params.pocket14_length")

doc.recompute()
